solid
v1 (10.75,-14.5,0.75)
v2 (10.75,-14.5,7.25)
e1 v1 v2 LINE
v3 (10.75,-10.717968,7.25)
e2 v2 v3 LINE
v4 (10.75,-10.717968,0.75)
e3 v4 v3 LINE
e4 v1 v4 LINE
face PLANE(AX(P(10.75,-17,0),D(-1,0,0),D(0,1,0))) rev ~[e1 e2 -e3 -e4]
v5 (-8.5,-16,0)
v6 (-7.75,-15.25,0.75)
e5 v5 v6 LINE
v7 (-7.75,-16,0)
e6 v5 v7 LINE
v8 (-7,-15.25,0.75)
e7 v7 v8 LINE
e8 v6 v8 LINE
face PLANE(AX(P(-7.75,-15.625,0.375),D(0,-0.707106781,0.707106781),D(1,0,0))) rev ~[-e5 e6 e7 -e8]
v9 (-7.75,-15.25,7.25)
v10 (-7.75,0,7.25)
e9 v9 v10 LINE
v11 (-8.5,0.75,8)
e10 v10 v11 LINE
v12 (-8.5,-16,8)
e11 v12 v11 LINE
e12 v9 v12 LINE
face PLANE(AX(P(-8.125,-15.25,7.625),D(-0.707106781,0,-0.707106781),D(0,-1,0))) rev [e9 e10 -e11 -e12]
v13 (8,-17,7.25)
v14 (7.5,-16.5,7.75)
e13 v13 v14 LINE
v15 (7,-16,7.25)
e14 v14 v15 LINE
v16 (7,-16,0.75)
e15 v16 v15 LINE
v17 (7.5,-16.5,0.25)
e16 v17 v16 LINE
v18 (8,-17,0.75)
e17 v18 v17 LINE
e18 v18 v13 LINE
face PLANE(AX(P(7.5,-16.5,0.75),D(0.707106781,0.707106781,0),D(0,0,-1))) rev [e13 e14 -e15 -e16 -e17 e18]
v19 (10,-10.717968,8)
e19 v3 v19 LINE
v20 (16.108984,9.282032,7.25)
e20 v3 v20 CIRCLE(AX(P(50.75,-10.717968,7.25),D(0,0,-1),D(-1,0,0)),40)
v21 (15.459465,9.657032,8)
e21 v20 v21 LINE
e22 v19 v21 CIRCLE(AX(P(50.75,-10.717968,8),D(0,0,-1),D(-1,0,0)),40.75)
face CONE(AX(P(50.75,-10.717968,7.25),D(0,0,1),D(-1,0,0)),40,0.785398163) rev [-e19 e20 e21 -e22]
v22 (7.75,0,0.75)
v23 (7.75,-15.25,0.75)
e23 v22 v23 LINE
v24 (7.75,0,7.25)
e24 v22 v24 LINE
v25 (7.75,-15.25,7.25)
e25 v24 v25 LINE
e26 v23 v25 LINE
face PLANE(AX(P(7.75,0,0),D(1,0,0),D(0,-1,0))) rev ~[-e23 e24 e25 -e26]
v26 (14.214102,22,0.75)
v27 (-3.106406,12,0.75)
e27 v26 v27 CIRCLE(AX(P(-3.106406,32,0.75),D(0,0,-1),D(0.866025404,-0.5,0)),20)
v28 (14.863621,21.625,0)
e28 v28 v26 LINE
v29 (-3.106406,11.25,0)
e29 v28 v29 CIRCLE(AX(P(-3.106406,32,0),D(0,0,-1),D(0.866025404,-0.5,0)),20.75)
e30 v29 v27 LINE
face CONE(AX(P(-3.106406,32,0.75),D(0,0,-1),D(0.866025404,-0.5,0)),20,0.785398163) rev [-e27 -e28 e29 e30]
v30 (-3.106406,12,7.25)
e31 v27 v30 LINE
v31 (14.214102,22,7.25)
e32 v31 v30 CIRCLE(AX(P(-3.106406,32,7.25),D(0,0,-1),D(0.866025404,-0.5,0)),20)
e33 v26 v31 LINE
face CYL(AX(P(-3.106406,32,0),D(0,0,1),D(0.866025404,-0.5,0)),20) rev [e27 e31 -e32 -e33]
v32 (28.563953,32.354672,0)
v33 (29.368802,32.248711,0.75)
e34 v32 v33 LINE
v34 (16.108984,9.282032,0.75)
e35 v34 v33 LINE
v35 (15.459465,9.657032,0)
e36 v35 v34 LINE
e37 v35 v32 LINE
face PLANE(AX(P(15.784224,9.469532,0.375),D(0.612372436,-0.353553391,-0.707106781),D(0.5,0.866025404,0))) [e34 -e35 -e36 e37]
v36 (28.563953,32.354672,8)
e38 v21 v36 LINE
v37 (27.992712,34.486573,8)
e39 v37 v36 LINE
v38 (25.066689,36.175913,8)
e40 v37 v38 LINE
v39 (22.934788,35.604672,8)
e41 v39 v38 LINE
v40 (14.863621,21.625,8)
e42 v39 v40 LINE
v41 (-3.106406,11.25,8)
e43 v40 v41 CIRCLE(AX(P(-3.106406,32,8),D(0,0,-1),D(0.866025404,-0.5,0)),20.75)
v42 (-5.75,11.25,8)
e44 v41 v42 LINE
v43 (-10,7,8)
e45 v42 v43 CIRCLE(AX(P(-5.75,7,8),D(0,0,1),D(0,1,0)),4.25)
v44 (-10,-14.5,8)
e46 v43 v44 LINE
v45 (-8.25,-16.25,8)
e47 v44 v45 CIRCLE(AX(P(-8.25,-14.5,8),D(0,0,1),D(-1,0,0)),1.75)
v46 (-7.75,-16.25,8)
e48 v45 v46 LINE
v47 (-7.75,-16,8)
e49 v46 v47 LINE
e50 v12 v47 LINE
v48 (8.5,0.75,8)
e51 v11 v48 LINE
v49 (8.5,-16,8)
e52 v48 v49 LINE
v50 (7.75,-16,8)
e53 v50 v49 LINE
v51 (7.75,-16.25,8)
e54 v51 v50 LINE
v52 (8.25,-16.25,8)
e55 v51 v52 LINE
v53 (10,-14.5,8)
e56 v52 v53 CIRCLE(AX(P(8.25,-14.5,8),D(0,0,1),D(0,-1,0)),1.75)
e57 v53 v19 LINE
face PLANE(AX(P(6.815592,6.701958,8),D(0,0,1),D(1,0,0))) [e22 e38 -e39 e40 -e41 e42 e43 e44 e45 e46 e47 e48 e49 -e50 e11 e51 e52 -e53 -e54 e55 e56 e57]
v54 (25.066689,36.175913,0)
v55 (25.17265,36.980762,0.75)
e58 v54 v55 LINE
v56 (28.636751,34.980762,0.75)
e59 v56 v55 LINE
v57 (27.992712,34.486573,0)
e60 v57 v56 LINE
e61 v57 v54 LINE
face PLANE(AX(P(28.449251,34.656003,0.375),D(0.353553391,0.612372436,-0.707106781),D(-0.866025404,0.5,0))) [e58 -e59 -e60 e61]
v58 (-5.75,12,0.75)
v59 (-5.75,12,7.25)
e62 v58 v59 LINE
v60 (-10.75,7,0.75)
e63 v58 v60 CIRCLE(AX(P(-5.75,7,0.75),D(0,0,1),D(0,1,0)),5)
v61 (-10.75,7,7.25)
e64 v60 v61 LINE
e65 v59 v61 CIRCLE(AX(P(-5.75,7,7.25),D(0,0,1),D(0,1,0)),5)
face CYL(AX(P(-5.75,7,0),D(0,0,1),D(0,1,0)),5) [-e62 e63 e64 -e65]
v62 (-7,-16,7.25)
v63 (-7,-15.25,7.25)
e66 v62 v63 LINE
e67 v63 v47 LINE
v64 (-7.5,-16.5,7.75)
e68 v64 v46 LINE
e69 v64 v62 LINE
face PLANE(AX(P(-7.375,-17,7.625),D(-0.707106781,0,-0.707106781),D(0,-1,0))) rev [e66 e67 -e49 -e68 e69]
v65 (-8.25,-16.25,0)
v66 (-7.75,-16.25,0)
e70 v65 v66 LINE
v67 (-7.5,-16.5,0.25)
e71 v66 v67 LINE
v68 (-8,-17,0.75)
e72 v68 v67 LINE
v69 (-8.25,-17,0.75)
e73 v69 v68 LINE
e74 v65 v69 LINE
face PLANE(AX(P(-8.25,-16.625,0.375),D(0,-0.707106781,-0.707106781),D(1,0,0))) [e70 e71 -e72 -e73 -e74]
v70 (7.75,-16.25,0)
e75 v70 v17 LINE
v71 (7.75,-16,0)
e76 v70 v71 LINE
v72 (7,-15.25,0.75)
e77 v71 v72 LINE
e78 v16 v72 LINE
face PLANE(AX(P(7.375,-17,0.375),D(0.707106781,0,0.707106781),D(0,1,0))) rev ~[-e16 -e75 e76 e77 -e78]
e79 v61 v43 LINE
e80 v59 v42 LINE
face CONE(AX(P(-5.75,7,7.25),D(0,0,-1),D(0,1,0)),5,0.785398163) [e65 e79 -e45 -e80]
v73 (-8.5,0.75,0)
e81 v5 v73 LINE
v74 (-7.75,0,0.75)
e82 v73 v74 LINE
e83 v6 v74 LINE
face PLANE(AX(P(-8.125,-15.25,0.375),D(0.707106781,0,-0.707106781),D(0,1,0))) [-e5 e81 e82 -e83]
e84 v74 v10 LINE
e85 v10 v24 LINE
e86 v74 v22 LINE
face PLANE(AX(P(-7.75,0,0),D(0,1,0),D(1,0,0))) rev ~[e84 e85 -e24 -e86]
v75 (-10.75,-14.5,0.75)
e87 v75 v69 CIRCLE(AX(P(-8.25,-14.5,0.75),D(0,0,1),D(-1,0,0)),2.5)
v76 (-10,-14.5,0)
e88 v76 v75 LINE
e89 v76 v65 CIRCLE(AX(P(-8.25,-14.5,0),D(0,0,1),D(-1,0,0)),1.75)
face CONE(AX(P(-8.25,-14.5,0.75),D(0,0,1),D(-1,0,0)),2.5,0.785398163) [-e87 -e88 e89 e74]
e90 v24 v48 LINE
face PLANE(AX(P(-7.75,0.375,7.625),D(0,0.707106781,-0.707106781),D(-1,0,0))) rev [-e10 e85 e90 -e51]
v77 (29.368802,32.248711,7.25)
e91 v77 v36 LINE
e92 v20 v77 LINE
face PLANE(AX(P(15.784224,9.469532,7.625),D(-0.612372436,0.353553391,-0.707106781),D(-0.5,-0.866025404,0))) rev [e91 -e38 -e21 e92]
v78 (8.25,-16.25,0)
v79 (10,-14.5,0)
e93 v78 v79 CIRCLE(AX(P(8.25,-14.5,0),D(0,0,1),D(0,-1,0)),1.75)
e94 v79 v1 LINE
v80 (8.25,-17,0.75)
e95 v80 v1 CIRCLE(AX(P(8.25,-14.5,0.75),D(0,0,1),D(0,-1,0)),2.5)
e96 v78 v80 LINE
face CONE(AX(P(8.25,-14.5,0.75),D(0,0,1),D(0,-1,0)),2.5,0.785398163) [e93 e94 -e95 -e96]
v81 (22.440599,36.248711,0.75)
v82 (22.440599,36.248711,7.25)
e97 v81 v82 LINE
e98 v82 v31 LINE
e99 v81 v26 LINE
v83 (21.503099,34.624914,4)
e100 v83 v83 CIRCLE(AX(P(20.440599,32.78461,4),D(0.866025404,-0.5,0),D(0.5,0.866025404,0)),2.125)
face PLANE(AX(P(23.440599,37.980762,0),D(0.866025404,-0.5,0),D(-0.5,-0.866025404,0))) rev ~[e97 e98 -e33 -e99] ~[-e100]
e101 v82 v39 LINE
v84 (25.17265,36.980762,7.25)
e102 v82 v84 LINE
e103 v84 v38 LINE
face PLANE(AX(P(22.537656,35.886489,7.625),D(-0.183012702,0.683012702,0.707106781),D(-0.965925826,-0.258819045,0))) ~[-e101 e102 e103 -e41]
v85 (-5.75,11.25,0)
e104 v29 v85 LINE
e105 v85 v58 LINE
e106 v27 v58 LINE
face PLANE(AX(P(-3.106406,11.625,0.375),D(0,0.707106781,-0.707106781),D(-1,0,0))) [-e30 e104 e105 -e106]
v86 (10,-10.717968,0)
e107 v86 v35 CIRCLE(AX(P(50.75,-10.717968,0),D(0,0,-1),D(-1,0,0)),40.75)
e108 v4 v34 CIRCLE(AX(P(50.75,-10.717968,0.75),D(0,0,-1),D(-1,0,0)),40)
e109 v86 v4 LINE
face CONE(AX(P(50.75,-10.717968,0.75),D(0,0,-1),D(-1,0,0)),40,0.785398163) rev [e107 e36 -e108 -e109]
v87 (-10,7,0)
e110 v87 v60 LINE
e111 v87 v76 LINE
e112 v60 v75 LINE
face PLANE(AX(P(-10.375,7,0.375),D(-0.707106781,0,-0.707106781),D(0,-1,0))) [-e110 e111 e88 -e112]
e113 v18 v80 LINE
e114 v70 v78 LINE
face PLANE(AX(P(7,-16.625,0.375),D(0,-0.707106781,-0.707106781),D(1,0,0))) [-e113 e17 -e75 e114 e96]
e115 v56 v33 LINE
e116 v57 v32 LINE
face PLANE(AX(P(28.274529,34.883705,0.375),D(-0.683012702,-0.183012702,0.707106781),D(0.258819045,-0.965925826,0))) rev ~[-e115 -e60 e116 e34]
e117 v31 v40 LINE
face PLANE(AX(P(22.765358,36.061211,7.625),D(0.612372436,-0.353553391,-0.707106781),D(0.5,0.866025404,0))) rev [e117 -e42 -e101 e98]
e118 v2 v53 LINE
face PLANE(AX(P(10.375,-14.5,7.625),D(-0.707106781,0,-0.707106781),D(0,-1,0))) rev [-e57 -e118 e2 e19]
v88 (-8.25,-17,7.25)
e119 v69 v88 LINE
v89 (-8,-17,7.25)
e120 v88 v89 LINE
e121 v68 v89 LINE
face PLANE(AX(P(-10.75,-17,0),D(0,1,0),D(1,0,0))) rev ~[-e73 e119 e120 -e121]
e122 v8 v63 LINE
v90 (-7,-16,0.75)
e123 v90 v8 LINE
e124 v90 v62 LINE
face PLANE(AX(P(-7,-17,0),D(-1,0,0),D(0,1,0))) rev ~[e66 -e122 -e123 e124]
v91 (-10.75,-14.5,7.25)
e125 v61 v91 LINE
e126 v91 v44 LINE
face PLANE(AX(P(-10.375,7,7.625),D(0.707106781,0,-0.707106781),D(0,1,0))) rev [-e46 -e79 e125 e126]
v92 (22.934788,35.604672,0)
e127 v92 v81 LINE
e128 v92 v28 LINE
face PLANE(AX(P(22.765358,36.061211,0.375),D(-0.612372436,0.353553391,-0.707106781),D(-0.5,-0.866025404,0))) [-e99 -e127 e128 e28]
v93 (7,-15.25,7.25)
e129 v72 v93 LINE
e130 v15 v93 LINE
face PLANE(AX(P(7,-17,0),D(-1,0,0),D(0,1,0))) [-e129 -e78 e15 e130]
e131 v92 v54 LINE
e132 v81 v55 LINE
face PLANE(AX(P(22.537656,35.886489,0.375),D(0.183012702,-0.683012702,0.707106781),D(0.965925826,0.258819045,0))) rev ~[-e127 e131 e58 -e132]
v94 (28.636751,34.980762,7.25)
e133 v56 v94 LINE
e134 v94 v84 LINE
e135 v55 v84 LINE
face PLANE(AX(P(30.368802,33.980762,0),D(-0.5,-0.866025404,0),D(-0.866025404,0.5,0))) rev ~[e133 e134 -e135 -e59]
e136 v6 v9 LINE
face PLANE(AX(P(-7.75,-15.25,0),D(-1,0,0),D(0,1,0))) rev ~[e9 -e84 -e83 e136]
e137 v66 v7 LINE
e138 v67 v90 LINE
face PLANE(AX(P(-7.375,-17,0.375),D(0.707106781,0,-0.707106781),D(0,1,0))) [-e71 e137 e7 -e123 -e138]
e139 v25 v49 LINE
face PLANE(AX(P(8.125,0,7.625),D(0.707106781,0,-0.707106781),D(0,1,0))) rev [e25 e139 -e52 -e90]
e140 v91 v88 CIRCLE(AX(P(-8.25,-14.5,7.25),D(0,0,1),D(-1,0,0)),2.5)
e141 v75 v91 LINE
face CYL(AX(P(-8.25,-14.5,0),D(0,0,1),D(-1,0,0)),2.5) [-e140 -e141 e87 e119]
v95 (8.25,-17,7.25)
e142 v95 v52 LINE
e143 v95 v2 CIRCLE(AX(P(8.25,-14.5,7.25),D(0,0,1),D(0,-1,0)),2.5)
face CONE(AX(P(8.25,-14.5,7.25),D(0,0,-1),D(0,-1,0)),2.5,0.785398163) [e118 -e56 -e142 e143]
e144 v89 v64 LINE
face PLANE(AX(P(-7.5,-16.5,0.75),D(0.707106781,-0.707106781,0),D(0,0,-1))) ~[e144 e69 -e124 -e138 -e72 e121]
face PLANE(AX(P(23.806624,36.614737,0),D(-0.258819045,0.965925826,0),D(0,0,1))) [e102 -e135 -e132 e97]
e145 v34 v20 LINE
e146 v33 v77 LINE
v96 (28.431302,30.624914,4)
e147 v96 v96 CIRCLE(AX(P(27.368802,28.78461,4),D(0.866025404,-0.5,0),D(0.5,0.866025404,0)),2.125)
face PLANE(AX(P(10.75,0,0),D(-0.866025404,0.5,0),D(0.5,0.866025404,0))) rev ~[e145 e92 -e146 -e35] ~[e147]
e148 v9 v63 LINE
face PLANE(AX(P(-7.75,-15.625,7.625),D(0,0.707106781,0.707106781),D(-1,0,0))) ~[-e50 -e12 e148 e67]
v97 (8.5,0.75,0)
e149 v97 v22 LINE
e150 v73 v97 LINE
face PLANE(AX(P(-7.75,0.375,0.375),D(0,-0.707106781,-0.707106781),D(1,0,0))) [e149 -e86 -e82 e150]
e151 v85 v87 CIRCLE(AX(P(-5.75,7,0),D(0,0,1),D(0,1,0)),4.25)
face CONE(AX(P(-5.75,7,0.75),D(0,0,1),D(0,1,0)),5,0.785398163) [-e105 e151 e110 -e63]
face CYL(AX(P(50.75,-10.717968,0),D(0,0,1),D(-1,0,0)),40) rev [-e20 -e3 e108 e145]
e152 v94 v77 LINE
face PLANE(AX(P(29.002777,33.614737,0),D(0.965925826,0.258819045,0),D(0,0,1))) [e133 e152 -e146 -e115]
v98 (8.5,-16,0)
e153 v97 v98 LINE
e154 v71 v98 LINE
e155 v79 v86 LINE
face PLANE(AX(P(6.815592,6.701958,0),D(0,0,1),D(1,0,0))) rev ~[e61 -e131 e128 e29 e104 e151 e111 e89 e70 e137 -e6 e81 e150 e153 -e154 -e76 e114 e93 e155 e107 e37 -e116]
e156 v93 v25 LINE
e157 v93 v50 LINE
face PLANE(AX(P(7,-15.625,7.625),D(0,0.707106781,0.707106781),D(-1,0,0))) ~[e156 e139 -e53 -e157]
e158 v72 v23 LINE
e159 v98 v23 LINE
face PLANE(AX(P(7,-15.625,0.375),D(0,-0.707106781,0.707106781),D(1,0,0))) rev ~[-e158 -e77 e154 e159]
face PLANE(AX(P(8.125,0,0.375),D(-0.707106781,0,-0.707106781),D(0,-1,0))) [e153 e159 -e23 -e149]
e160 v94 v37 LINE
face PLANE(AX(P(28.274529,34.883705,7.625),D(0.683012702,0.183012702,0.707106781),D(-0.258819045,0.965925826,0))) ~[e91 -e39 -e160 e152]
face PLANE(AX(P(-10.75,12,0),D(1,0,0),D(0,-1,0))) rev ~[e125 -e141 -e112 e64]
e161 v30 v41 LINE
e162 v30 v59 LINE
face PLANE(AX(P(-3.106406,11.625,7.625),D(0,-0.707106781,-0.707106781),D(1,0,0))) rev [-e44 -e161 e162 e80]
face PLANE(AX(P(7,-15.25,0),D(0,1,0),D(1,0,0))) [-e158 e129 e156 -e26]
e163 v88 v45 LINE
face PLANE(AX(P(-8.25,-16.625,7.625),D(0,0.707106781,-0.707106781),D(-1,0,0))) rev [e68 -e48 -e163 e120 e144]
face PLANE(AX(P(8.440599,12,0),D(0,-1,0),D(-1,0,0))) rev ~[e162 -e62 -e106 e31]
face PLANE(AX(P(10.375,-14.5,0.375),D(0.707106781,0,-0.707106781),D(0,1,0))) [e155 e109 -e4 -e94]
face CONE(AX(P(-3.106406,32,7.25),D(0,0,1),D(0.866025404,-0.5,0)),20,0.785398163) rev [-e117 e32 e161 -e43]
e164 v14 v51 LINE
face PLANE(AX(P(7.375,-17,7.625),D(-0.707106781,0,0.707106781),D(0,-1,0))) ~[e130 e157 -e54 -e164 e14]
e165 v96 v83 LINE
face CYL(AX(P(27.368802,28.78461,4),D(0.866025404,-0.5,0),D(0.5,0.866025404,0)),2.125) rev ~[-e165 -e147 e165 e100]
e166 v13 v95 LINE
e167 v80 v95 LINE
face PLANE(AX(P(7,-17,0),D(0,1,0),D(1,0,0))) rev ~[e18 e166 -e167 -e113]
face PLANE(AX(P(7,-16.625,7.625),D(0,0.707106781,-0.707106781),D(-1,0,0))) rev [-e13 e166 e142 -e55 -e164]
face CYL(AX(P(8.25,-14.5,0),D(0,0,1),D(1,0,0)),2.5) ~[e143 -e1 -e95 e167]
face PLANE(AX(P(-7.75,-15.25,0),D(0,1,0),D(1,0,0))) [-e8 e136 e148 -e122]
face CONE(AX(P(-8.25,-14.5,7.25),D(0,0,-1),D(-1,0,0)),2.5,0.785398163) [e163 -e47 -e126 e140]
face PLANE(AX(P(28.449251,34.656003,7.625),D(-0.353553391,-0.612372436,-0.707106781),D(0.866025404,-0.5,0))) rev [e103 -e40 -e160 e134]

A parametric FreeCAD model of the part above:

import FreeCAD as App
import Part
import Sketcher
Q = App.Units.Quantity


def edges_at(feature, points):
    """Names of the edges that pass closest to the given points."""
    edges = feature.Shape.Edges
    near = lambda p: min(range(len(edges)), key=lambda i: edges[i].distToShape(Part.Vertex(*p))[0])
    return sorted({f"Edge{near(p) + 1}" for p in points})


def add_polygon(sketch, points):
    """Adds a closed chain of lines whose ends are joined by coincident constraints."""
    first, n = sketch.GeometryCount, len(points)
    for a, b in zip(points, points[1:] + points[:1]):
        sketch.addGeometry(Part.LineSegment(App.Vector(*a, 0), App.Vector(*b, 0)), False)
    for i in range(n):
        sketch.addConstraint(Sketcher.Constraint("Coincident", first + i, 2, first + (i + 1) % n, 1))

doc = App.newDocument("Part")
body = doc.addObject("PartDesign::Body", "Body")

# Sketch on XY plane
sketch1 = body.newObject("Sketcher::SketchObject", "Sketch")
sketch1.AttachmentSupport = (doc.getObject("XY_Plane"), [""])
sketch1.MapMode = "FlatFace"
add_polygon(sketch1, [(-10.8, -17), (-7, -17), (-7, -15.2), (-7.8, -15.2), (-7.8, 0), (7.8, 0), (7.8, -15.2), (7, -15.2), (7, -17), (10.8, -17), (10.8, 0), (30.4, 34), (23.4, 38), (8.4, 12), (-10.8, 12)])  # lines 0-14
sketch1.addConstraint(Sketcher.Constraint("Horizontal", 0))
sketch1.addConstraint(Sketcher.Constraint("Vertical", 1))
sketch1.addConstraint(Sketcher.Constraint("Horizontal", 2))
sketch1.addConstraint(Sketcher.Constraint("Vertical", 3))
sketch1.addConstraint(Sketcher.Constraint("Horizontal", 4))
sketch1.addConstraint(Sketcher.Constraint("Vertical", 5))
sketch1.addConstraint(Sketcher.Constraint("Horizontal", 6))
sketch1.addConstraint(Sketcher.Constraint("Vertical", 7))
sketch1.addConstraint(Sketcher.Constraint("Horizontal", 8))
sketch1.addConstraint(Sketcher.Constraint("Vertical", 9))
sketch1.addConstraint(Sketcher.Constraint("Horizontal", 13))
sketch1.addConstraint(Sketcher.Constraint("Vertical", 14))
sketch1.addConstraint(Sketcher.Constraint("Symmetric", 3, 2, 4, 2, -1, 1))
sketch1.addConstraint(Sketcher.Constraint("Symmetric", 1, 2, 6, 2, -2))
sketch1.addConstraint(Sketcher.Constraint("Symmetric", 8, 2, 14, 2, -2))
sketch1.addConstraint(Sketcher.Constraint("PointOnObject", 9, 2, -1))
sketch1.addConstraint(Sketcher.Constraint("Perpendicular", 10, 11))
sketch1.addConstraint(Sketcher.Constraint("Perpendicular", 11, 12))
sketch1.addConstraint(Sketcher.Constraint("DistanceY", 9, 1, 9, 2, 17.0))
sketch1.addConstraint(Sketcher.Constraint("DistanceY", 14, 2, 14, 1, 29.0))
sketch1.addConstraint(Sketcher.Constraint("Angle", 10, Q("60 deg")))
sketch1.addConstraint(Sketcher.Constraint("Distance", 11, 8.0))
sketch1.addConstraint(Sketcher.Constraint("Distance", 12, 30.0))
sketch1.addConstraint(Sketcher.Constraint("DistanceX", 4, 1, 4, 2, 15.5))
sketch1.addConstraint(Sketcher.Constraint("DistanceX", 0, 2, -1, 1, 7.0))
sketch1.addConstraint(Sketcher.Constraint("DistanceX", 5, 2, 8, 2, 3.0))
sketch1.addConstraint(Sketcher.Constraint("DistanceY", 1, 1, 1, 2, 1.75))
pad1 = body.newObject("PartDesign::Pad", "Pad")
pad1.Profile = sketch1
pad1.Length = 8
doc.recompute()

fillet = body.newObject("PartDesign::Fillet", "Fillet")
fillet.Base = (pad1, edges_at(pad1, [(10.75, 0, 4)]))
fillet.Radius = 40
doc.recompute()

fillet2 = body.newObject("PartDesign::Fillet", "Fillet001")
fillet2.Base = (fillet, edges_at(fillet, [(8.441, 12, 4)]))
fillet2.Radius = 20
doc.recompute()

fillet3 = body.newObject("PartDesign::Fillet", "Fillet002")
fillet3.Base = (fillet2, edges_at(fillet2, [(-10.75, 12, 4)]))
fillet3.Radius = 5
doc.recompute()

fillet4 = body.newObject("PartDesign::Fillet", "Fillet003")
fillet4.Base = (fillet3, edges_at(fillet3, [(10.75, -17, 4), (-10.75, -17, 4)]))
fillet4.Radius = 2.5
doc.recompute()

chamfer = body.newObject("PartDesign::Chamfer", "Chamfer")
chamfer.Base = (fillet4, edges_at(fillet4, [(30.369, 33.981, 4), (23.441, 37.981, 4)]))
chamfer.Size = 2

# Sketch on an angled plane
sketch2 = body.newObject("Sketcher::SketchObject", "Sketch001")
sketch2.Placement = App.Placement(App.Vector(8.0625, -4.654887, 0), App.Rotation(App.Vector(0.5, 0.866025404, 0), App.Vector(0, 0, 1), App.Vector(0.866025404, -0.5, 0), "ZXY"))
sketch2.addGeometry(Part.Circle(App.Vector(38.6, 4, 0), App.Vector(0, 0, 1), 2.1), False)
sketch2.addConstraint(Sketcher.Constraint("Diameter", 0, 4.25))
sketch2.addConstraint(Sketcher.Constraint("DistanceY", -1, 1, 0, 3, 4.0))
sketch2.addConstraint(Sketcher.Constraint("DistanceX", -1, 1, 0, 3, 38.612604))
pocket1 = body.newObject("PartDesign::Pocket", "Pocket")
pocket1.Profile = sketch2
pocket1.Type = "ThroughAll"
doc.recompute()

chamfer2 = body.newObject("PartDesign::Chamfer", "Chamfer001")
chamfer2.Base = (pocket1, edges_at(pocket1, [
    (18.327, 29.124, 8),
    (23.807, 36.615, 8),
    (6.894, 14.679, 8),
    (26.905, 35.981, 8),
    (-4.428, 12, 8),
    (29.003, 33.615, 8),
    (-9.286, 10.536, 8),
    (22.739, 20.765, 8),
    (-10.75, -3.75, 8),
    (12.113, -0.365, 8),
    (-10.018, -16.268, 8),
    (10.75, -12.609, 8),
    (-7.625, -17, 8),
    (10.018, -16.268, 8),
    (-7, -16.125, 8),
    (7.625, -17, 8),
    (-7.375, -15.25, 8),
    (7, -16.125, 8),
    (-7.75, -7.625, 8),
    (7.375, -15.25, 8),
    (0, 0, 8),
    (7.75, -7.625, 8),
    (18.327, 29.124, 0),
    (23.807, 36.615, 0),
    (6.894, 14.679, 0),
    (26.905, 35.981, 0),
    (-4.428, 12, 0),
    (29.003, 33.615, 0),
    (-9.286, 10.536, 0),
    (22.739, 20.765, 0),
    (-10.75, -3.75, 0),
    (12.113, -0.365, 0),
    (-10.018, -16.268, 0),
    (10.75, -12.609, 0),
    (-7.625, -17, 0),
    (10.018, -16.268, 0),
    (-7, -16.125, 0),
    (7.625, -17, 0),
    (-7.375, -15.25, 0),
    (7, -16.125, 0),
    (-7.75, -7.625, 0),
    (7.375, -15.25, 0),
    (0, 0, 0),
    (7.75, -7.625, 0),
]))
chamfer2.Size = 0.75
doc.recompute()

chamfer3 = body.newObject("PartDesign::Chamfer", "Chamfer002")
chamfer3.Base = (chamfer2, edges_at(chamfer2, [(-7, -17, 4), (7, -17, 4)]))
chamfer3.Size = 1

doc.recompute()
